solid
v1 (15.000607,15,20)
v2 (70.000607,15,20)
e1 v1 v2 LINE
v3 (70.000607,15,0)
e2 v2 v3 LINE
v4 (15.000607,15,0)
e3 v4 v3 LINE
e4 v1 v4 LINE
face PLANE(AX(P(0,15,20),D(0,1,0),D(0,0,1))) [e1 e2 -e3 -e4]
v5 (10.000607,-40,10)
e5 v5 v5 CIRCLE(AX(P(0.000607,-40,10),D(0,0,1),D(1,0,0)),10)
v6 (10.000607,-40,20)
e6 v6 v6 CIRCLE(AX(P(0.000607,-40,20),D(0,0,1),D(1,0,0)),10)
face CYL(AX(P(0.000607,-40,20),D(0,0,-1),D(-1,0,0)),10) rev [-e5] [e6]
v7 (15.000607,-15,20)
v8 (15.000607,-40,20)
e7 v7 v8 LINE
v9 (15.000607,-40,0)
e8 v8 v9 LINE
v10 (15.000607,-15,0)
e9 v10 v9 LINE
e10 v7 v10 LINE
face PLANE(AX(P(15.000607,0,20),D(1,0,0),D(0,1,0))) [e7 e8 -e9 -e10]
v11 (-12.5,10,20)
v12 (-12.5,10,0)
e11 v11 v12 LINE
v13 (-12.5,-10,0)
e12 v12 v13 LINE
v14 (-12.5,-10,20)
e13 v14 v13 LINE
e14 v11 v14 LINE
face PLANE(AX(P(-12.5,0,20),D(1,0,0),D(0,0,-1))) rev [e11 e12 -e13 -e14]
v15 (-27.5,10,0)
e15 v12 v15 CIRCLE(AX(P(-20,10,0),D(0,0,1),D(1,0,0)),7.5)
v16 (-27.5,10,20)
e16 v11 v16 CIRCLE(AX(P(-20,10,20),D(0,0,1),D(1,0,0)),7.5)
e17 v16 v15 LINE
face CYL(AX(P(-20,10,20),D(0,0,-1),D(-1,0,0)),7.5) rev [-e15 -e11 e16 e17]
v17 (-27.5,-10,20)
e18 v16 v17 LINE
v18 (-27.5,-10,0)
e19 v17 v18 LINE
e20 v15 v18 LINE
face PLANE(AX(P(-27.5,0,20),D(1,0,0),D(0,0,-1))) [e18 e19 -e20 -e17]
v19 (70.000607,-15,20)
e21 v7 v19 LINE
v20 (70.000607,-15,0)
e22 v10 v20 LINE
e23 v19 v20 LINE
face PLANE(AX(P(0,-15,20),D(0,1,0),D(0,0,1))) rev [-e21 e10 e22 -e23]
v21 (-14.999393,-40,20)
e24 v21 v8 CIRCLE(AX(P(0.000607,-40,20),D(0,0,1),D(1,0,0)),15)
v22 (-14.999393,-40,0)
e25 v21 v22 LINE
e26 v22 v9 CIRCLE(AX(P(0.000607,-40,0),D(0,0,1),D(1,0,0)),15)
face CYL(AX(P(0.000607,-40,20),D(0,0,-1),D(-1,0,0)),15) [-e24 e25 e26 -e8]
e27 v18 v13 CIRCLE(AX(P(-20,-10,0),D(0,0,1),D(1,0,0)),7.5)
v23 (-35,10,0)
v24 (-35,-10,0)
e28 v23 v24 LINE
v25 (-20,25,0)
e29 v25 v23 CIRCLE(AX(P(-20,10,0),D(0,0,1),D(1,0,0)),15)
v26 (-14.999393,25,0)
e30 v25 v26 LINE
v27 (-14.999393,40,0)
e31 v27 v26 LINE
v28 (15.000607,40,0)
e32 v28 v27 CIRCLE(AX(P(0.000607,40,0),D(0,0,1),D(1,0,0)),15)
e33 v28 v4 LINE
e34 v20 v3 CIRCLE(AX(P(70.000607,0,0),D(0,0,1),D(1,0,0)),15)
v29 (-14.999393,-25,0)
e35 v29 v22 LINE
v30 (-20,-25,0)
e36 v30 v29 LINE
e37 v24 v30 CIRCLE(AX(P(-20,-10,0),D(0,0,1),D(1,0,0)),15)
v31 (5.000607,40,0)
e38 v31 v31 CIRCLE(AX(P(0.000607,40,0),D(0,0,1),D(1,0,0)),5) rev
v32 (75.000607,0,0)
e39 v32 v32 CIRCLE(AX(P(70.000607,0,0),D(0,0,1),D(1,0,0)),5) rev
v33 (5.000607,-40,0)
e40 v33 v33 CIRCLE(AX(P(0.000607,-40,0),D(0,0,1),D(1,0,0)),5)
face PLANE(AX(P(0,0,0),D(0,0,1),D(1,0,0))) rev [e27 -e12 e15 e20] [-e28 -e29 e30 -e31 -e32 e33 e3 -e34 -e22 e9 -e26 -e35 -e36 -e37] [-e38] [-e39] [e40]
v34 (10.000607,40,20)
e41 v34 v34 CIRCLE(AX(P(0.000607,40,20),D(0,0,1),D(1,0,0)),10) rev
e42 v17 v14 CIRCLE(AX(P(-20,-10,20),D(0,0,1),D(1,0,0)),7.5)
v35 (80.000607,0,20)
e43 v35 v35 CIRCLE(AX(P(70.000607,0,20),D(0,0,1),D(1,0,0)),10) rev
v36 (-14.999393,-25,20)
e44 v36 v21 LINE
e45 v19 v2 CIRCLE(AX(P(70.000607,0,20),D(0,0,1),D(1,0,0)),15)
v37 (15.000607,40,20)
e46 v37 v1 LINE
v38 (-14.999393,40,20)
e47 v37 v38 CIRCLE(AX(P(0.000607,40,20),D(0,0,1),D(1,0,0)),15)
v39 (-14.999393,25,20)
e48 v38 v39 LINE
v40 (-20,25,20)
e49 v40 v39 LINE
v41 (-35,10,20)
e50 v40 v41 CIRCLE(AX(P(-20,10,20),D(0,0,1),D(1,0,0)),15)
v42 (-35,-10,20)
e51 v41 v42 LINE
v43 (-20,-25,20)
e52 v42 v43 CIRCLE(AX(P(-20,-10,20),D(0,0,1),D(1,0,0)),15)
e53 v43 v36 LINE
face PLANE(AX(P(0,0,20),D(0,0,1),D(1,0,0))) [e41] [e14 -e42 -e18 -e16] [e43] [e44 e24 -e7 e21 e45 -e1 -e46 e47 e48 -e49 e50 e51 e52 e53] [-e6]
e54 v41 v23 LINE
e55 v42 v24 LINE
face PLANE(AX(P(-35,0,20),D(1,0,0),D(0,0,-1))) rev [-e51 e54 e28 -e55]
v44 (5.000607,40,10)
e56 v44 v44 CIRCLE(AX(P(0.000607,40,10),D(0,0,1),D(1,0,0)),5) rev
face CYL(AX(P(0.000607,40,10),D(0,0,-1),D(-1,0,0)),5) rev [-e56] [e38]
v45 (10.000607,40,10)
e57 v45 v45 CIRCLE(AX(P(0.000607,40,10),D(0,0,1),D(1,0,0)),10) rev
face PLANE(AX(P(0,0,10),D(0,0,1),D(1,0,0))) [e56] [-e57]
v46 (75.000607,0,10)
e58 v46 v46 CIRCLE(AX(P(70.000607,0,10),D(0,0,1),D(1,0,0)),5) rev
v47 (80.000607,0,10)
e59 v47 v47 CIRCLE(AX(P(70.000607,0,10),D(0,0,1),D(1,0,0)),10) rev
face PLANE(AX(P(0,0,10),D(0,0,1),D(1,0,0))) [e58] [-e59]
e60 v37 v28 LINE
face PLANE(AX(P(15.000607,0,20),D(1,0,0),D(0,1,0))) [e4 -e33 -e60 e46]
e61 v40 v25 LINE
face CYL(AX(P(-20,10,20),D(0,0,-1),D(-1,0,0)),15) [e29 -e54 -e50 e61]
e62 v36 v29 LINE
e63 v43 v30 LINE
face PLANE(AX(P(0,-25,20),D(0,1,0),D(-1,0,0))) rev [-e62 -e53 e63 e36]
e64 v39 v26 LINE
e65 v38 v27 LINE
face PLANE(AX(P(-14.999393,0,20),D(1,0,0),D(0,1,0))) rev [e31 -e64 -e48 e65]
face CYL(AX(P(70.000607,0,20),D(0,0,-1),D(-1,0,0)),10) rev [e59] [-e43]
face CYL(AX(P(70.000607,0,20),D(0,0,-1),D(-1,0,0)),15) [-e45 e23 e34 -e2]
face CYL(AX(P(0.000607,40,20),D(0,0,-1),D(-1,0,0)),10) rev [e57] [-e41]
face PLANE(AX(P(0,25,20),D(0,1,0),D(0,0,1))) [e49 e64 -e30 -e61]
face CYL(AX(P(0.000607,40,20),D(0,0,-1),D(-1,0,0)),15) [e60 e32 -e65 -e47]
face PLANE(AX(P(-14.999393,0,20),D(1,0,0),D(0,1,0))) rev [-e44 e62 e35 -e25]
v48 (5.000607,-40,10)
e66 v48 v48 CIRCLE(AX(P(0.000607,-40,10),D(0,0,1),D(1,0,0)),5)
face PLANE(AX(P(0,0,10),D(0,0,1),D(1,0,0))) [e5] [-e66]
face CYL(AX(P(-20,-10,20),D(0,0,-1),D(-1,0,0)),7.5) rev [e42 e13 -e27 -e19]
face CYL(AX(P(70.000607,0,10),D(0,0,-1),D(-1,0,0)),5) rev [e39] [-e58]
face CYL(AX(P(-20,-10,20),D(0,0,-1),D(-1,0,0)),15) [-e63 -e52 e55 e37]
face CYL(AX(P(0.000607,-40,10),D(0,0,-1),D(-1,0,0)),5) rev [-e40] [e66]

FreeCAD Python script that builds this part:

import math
import FreeCAD as App
import Part
import Sketcher
Q = App.Units.Quantity

doc = App.newDocument("Part")
body = doc.addObject("PartDesign::Body", "Body")

# Sketch on XY plane
sketch1 = doc.addObject("Sketcher::SketchObject", "Sketch")
body.addObject(sketch1)
sketch1.AttachmentSupport = (doc.XY_Plane, [""])
sketch1.MapMode = "FlatFace"
sketch1.addGeometry(Part.LineSegment(App.Vector(15, -15, 0), App.Vector(70, -15, 0)), False)
sketch1.addGeometry(Part.ArcOfCircle(Part.Circle(App.Vector(70, 0, 0), App.Vector(0, 0, 1), 15), math.radians(-90), math.radians(90)), False)
sketch1.addGeometry(Part.LineSegment(App.Vector(70, 15, 0), App.Vector(15, 15, 0)), False)
sketch1.addGeometry(Part.LineSegment(App.Vector(15, 15, 0), App.Vector(15, 40, 0)), False)
sketch1.addGeometry(Part.ArcOfCircle(Part.Circle(App.Vector(0, 40, 0), App.Vector(0, 0, 1), 15), math.radians(0), math.radians(180)), False)
sketch1.addGeometry(Part.LineSegment(App.Vector(-15, 40, 0), App.Vector(-15, 25, 0)), False)
sketch1.addGeometry(Part.LineSegment(App.Vector(-15, 25, 0), App.Vector(-20, 25, 0)), False)
sketch1.addGeometry(Part.ArcOfCircle(Part.Circle(App.Vector(-20, 10, 0), App.Vector(0, 0, 1), 15), math.radians(90), math.radians(180)), False)
sketch1.addGeometry(Part.LineSegment(App.Vector(-35, 10, 0), App.Vector(-35, -10, 0)), False)
sketch1.addGeometry(Part.ArcOfCircle(Part.Circle(App.Vector(-20, -10, 0), App.Vector(0, 0, 1), 15), math.radians(180), math.radians(270)), False)
sketch1.addGeometry(Part.LineSegment(App.Vector(-20, -25, 0), App.Vector(-15, -25, 0)), False)
sketch1.addGeometry(Part.LineSegment(App.Vector(-15, -25, 0), App.Vector(-15, -40, 0)), False)
sketch1.addGeometry(Part.ArcOfCircle(Part.Circle(App.Vector(0, -40, 0), App.Vector(0, 0, 1), 15), math.radians(180), math.radians(360)), False)
sketch1.addGeometry(Part.LineSegment(App.Vector(15, -40, 0), App.Vector(15, -15, 0)), False)
sketch1.addGeometry(Part.Circle(App.Vector(0, -40, 0), App.Vector(0, 0, 1), 10), False)
sketch1.addGeometry(Part.ArcOfCircle(Part.Circle(App.Vector(-20, -10, 0), App.Vector(0, 0, 1), 8), math.radians(180), math.radians(360)), False)
sketch1.addGeometry(Part.LineSegment(App.Vector(-28, -10, 0), App.Vector(-28, 10, 0)), False)
sketch1.addGeometry(Part.ArcOfCircle(Part.Circle(App.Vector(-20, 10, 0), App.Vector(0, 0, 1), 8), math.radians(0), math.radians(180)), False)
sketch1.addGeometry(Part.LineSegment(App.Vector(-12, 10, 0), App.Vector(-12, -10, 0)), False)
sketch1.addGeometry(Part.Circle(App.Vector(0, 40, 0), App.Vector(0, 0, 1), 10), False)
sketch1.addGeometry(Part.Circle(App.Vector(70, 0, 0), App.Vector(0, 0, 1), 10), False)
sketch1.addConstraint(Sketcher.Constraint("Tangent", 0, 2, 1, 1))
sketch1.addConstraint(Sketcher.Constraint("Tangent", 1, 2, 2, 1))
sketch1.addConstraint(Sketcher.Constraint("Coincident", 2, 2, 3, 1))
sketch1.addConstraint(Sketcher.Constraint("Tangent", 3, 2, 4, 1))
sketch1.addConstraint(Sketcher.Constraint("Tangent", 4, 2, 5, 1))
sketch1.addConstraint(Sketcher.Constraint("Coincident", 5, 2, 6, 1))
sketch1.addConstraint(Sketcher.Constraint("Tangent", 6, 2, 7, 1))
sketch1.addConstraint(Sketcher.Constraint("Tangent", 7, 2, 8, 1))
sketch1.addConstraint(Sketcher.Constraint("Tangent", 8, 2, 9, 1))
sketch1.addConstraint(Sketcher.Constraint("Tangent", 9, 2, 10, 1))
sketch1.addConstraint(Sketcher.Constraint("Coincident", 10, 2, 11, 1))
sketch1.addConstraint(Sketcher.Constraint("Tangent", 11, 2, 12, 1))
sketch1.addConstraint(Sketcher.Constraint("Tangent", 12, 2, 13, 1))
sketch1.addConstraint(Sketcher.Constraint("Coincident", 13, 2, 0, 1))
sketch1.addConstraint(Sketcher.Constraint("Tangent", 15, 1, 16, 1))
sketch1.addConstraint(Sketcher.Constraint("Tangent", 16, 2, 17, 2))
sketch1.addConstraint(Sketcher.Constraint("Tangent", 17, 1, 18, 1))
sketch1.addConstraint(Sketcher.Constraint("Tangent", 18, 2, 15, 2))
sketch1.addConstraint(Sketcher.Constraint("Horizontal", 0))
sketch1.addConstraint(Sketcher.Constraint("Horizontal", 2))
sketch1.addConstraint(Sketcher.Constraint("Vertical", 3))
sketch1.addConstraint(Sketcher.Constraint("Vertical", 5))
sketch1.addConstraint(Sketcher.Constraint("Horizontal", 6))
sketch1.addConstraint(Sketcher.Constraint("Vertical", 8))
sketch1.addConstraint(Sketcher.Constraint("Horizontal", 10))
sketch1.addConstraint(Sketcher.Constraint("Vertical", 11))
sketch1.addConstraint(Sketcher.Constraint("Vertical", 13))
sketch1.addConstraint(Sketcher.Constraint("Vertical", 16))
sketch1.addConstraint(Sketcher.Constraint("Vertical", 18))
sketch1.addConstraint(Sketcher.Constraint("Coincident", 14, 3, 12, 3))
sketch1.addConstraint(Sketcher.Constraint("Coincident", 15, 3, 9, 3))
sketch1.addConstraint(Sketcher.Constraint("Coincident", 17, 3, 7, 3))
sketch1.addConstraint(Sketcher.Constraint("Coincident", 19, 3, 4, 3))
sketch1.addConstraint(Sketcher.Constraint("Coincident", 20, 3, 1, 3))
sketch1.addConstraint(Sketcher.Constraint("Equal", 1, 4))
sketch1.addConstraint(Sketcher.Constraint("Equal", 4, 7))
sketch1.addConstraint(Sketcher.Constraint("Equal", 9, 12))
sketch1.addConstraint(Sketcher.Constraint("Equal", 14, 19))
sketch1.addConstraint(Sketcher.Constraint("Equal", 19, 20))
sketch1.addConstraint(Sketcher.Constraint("Symmetric", 4, 3, 12, 3, -1))
sketch1.addConstraint(Sketcher.Constraint("PointOnObject", 1, 3, -1))
sketch1.addConstraint(Sketcher.Constraint("Equal", 5, 11))
sketch1.addConstraint(Sketcher.Constraint("Diameter", 14, Q("20 mm")))
sketch1.addConstraint(Sketcher.Constraint("Radius", 1, Q("15 mm")))
sketch1.addConstraint(Sketcher.Constraint("Radius", 15, Q("7.5 mm")))
sketch1.addConstraint(Sketcher.Constraint("DistanceX", 0, 1, 0, 2, Q("55 mm")))
sketch1.addConstraint(Sketcher.Constraint("DistanceY", 3, 1, 3, 2, Q("25 mm")))
sketch1.addConstraint(Sketcher.Constraint("DistanceY", 5, 2, 5, 1, Q("15 mm")))
sketch1.addConstraint(Sketcher.Constraint("DistanceX", 7, 3, -1, 1, Q("20 mm")))
sketch1.addConstraint(Sketcher.Constraint("DistanceX", 6, 2, 6, 1, Q("5.000607 mm")))
pad1 = doc.addObject("PartDesign::Pad", "Pad")
body.addObject(pad1)
pad1.Profile = sketch1
pad1.Length = 20

# Sketch on XY plane
sketch2 = doc.addObject("Sketcher::SketchObject", "Sketch001")
body.addObject(sketch2)
sketch2.AttachmentSupport = (doc.XY_Plane, [""])
sketch2.MapMode = "FlatFace"
sketch2.addGeometry(Part.Circle(App.Vector(0, 40, 0), App.Vector(0, 0, 1), 10), False)
sketch2.addGeometry(Part.Circle(App.Vector(0, 40, 0), App.Vector(0, 0, 1), 5), False)
sketch2.addGeometry(Part.Circle(App.Vector(0, -40, 0), App.Vector(0, 0, 1), 10), False)
sketch2.addGeometry(Part.Circle(App.Vector(0, -40, 0), App.Vector(0, 0, 1), 5), False)
sketch2.addGeometry(Part.Circle(App.Vector(70, 0, 0), App.Vector(0, 0, 1), 10), False)
sketch2.addGeometry(Part.Circle(App.Vector(70, 0, 0), App.Vector(0, 0, 1), 5), False)
sketch2.addConstraint(Sketcher.Constraint("Coincident", 1, 3, 0, 3))
sketch2.addConstraint(Sketcher.Constraint("Coincident", 3, 3, 2, 3))
sketch2.addConstraint(Sketcher.Constraint("Coincident", 5, 3, 4, 3))
sketch2.addConstraint(Sketcher.Constraint("Equal", 0, 2))
sketch2.addConstraint(Sketcher.Constraint("Equal", 1, 3))
sketch2.addConstraint(Sketcher.Constraint("Equal", 2, 4))
sketch2.addConstraint(Sketcher.Constraint("Equal", 3, 5))
sketch2.addConstraint(Sketcher.Constraint("Symmetric", 0, 3, 2, 3, -1))
sketch2.addConstraint(Sketcher.Constraint("PointOnObject", 4, 3, -1))
sketch2.addConstraint(Sketcher.Constraint("Diameter", 0, Q("20 mm")))
sketch2.addConstraint(Sketcher.Constraint("Diameter", 1, Q("10 mm")))
sketch2.addConstraint(Sketcher.Constraint("DistanceY", -1, 1, 0, 3, Q("40 mm")))
sketch2.addConstraint(Sketcher.Constraint("DistanceX", 0, 3, 4, 3, Q("70 mm")))
sketch2.addConstraint(Sketcher.Constraint("DistanceX", -1, 1, 0, 3, Q("0.000607 mm")))
pad2 = doc.addObject("PartDesign::Pad", "Pad001")
body.addObject(pad2)
pad2.Profile = sketch2
pad2.Length = 10

doc.recompute()
